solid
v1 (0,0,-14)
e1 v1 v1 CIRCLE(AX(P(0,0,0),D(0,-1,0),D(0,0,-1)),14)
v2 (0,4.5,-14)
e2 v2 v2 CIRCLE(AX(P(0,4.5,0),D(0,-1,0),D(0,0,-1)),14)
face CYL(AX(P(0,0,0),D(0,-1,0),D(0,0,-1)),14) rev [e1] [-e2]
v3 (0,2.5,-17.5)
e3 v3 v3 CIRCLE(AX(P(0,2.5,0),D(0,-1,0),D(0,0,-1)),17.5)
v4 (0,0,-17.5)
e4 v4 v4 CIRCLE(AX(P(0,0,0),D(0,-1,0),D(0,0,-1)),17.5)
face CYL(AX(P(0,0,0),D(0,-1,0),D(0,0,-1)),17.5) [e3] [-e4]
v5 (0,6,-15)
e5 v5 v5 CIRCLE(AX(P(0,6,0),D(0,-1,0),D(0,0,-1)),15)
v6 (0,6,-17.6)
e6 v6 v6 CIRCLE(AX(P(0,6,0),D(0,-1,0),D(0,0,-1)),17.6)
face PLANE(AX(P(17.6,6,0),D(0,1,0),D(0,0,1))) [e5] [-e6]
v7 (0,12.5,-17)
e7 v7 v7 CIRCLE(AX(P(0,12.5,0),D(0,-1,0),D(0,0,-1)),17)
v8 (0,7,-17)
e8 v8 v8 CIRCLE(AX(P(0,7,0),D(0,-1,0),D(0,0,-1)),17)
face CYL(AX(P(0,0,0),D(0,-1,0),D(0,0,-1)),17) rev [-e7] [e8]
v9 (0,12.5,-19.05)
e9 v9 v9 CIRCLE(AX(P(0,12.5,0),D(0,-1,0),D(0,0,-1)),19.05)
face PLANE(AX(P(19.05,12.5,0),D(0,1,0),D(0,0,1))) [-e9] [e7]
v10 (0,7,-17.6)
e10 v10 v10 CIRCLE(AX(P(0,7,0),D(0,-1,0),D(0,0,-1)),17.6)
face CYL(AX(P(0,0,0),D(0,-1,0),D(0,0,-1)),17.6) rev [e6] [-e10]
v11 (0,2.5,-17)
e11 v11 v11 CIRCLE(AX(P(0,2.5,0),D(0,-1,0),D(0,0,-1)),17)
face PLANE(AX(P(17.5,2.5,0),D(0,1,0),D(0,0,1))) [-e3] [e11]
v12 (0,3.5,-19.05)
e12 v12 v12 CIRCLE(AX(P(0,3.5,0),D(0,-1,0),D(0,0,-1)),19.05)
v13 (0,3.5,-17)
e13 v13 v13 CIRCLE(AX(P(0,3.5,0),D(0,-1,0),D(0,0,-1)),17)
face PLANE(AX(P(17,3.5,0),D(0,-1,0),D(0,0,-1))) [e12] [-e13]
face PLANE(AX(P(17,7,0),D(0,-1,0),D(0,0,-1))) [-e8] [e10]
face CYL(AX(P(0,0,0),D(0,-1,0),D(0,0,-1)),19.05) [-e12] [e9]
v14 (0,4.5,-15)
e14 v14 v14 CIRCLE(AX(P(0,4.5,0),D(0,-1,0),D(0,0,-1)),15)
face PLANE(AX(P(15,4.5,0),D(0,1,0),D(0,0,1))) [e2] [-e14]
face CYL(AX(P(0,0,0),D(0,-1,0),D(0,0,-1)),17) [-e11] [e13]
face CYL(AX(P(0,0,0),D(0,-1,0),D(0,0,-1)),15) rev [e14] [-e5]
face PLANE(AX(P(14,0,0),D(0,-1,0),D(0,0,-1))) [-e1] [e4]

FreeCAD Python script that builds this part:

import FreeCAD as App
import Part
import Sketcher
from FreeCAD import Vector

doc = App.newDocument("Part")
params = doc.addObject("Spreadsheet::Sheet", "Params")
for row, (alias, value) in enumerate([
    ("sketch1_width", "1 mm"),
    ("sketch1_height", "9 mm"),
    ("sketch1_width2", "3.5 mm"),
    ("sketch1_width3", "0.5 mm"),
    ("sketch1_width4", "0.6 mm"),
    ("revolution_angle", "360 deg"),
], start=1):
    params.set(f"A{row}", alias)
    params.set(f"B{row}", "=" + value)
    params.setAlias(f"B{row}", alias)

body = doc.addObject("PartDesign::Body", "Body")

# Sketch on XY plane
sketch1 = doc.addObject("Sketcher::SketchObject", "Sketch")
body.addObject(sketch1)
sketch1.AttachmentSupport = (doc.XY_Plane, [""])
sketch1.MapMode = "FlatFace"
sketch1.addGeometry(Part.LineSegment(Vector(14, 0, 0), Vector(17.5, 0, 0)), False)
sketch1.addGeometry(Part.LineSegment(Vector(17.5, 0, 0), Vector(17.5, 2.5, 0)), False)
sketch1.addGeometry(Part.LineSegment(Vector(17.5, 2.5, 0), Vector(17, 2.5, 0)), False)
sketch1.addGeometry(Part.LineSegment(Vector(17, 2.5, 0), Vector(17, 3.5, 0)), False)
sketch1.addGeometry(Part.LineSegment(Vector(17, 3.5, 0), Vector(19.1, 3.5, 0)), False)
sketch1.addGeometry(Part.LineSegment(Vector(19.1, 3.5, 0), Vector(19.1, 12.5, 0)), False)
sketch1.addGeometry(Part.LineSegment(Vector(19.1, 12.5, 0), Vector(17, 12.5, 0)), False)
sketch1.addGeometry(Part.LineSegment(Vector(17, 12.5, 0), Vector(17, 7, 0)), False)
sketch1.addGeometry(Part.LineSegment(Vector(17, 7, 0), Vector(17.6, 7, 0)), False)
sketch1.addGeometry(Part.LineSegment(Vector(17.6, 7, 0), Vector(17.6, 6, 0)), False)
sketch1.addGeometry(Part.LineSegment(Vector(17.6, 6, 0), Vector(15, 6, 0)), False)
sketch1.addGeometry(Part.LineSegment(Vector(15, 6, 0), Vector(15, 4.5, 0)), False)
sketch1.addGeometry(Part.LineSegment(Vector(15, 4.5, 0), Vector(14, 4.5, 0)), False)
sketch1.addGeometry(Part.LineSegment(Vector(14, 4.5, 0), Vector(14, 0, 0)), False)
sketch1.addConstraint(Sketcher.Constraint("Coincident", 0, 2, 1, 1))
sketch1.addConstraint(Sketcher.Constraint("Coincident", 1, 2, 2, 1))
sketch1.addConstraint(Sketcher.Constraint("Coincident", 2, 2, 3, 1))
sketch1.addConstraint(Sketcher.Constraint("Coincident", 3, 2, 4, 1))
sketch1.addConstraint(Sketcher.Constraint("Coincident", 4, 2, 5, 1))
sketch1.addConstraint(Sketcher.Constraint("Coincident", 5, 2, 6, 1))
sketch1.addConstraint(Sketcher.Constraint("Coincident", 6, 2, 7, 1))
sketch1.addConstraint(Sketcher.Constraint("Coincident", 7, 2, 8, 1))
sketch1.addConstraint(Sketcher.Constraint("Coincident", 8, 2, 9, 1))
sketch1.addConstraint(Sketcher.Constraint("Coincident", 9, 2, 10, 1))
sketch1.addConstraint(Sketcher.Constraint("Coincident", 10, 2, 11, 1))
sketch1.addConstraint(Sketcher.Constraint("Coincident", 11, 2, 12, 1))
sketch1.addConstraint(Sketcher.Constraint("Coincident", 12, 2, 13, 1))
sketch1.addConstraint(Sketcher.Constraint("Coincident", 13, 2, 0, 1))
sketch1.addConstraint(Sketcher.Constraint("Horizontal", 0))
sketch1.addConstraint(Sketcher.Constraint("Vertical", 1))
sketch1.addConstraint(Sketcher.Constraint("Horizontal", 2))
sketch1.addConstraint(Sketcher.Constraint("Vertical", 3))
sketch1.addConstraint(Sketcher.Constraint("Horizontal", 4))
sketch1.addConstraint(Sketcher.Constraint("Vertical", 5))
sketch1.addConstraint(Sketcher.Constraint("Horizontal", 6))
sketch1.addConstraint(Sketcher.Constraint("Vertical", 7))
sketch1.addConstraint(Sketcher.Constraint("Horizontal", 8))
sketch1.addConstraint(Sketcher.Constraint("Vertical", 9))
sketch1.addConstraint(Sketcher.Constraint("Horizontal", 10))
sketch1.addConstraint(Sketcher.Constraint("Vertical", 11))
sketch1.addConstraint(Sketcher.Constraint("Horizontal", 12))
sketch1.addConstraint(Sketcher.Constraint("Vertical", 13))
sketch1.addConstraint(Sketcher.Constraint("PointOnObject", 0, 2, -1))
sketch1.addConstraint(Sketcher.Constraint("Vertical", 3, 2, 6, 2))
sketch1.addConstraint(Sketcher.Constraint("Equal", 12, 3))
sketch1.addConstraint(Sketcher.Constraint("Equal", 3, 9))
sketch1.addConstraint(Sketcher.Constraint("DistanceX", 12, 2, 12, 1, 1.0))
sketch1.addConstraint(Sketcher.Constraint("DistanceY", 5, 1, 5, 2, 9.0))
sketch1.addConstraint(Sketcher.Constraint("DistanceX", 0, 1, 0, 2, 3.5))
sketch1.addConstraint(Sketcher.Constraint("DistanceX", 2, 2, 2, 1, 0.5))
sketch1.addConstraint(Sketcher.Constraint("DistanceX", 8, 1, 8, 2, 0.6))
sketch1.addConstraint(Sketcher.Constraint("DistanceY", 1, 1, 1, 2, 2.5))
sketch1.addConstraint(Sketcher.Constraint("DistanceY", 7, 2, 7, 1, 5.5))
sketch1.addConstraint(Sketcher.Constraint("DistanceY", 11, 2, 11, 1, 1.5))
sketch1.addConstraint(Sketcher.Constraint("DistanceX", -1, 1, 2, 2, 17.0))
sketch1.addConstraint(Sketcher.Constraint("DistanceX", 4, 1, 4, 2, 2.05))
sketch1.setExpression("Constraints[32]", "Params.sketch1_width")
sketch1.setExpression("Constraints[33]", "Params.sketch1_height")
sketch1.setExpression("Constraints[34]", "Params.sketch1_width2")
sketch1.setExpression("Constraints[35]", "Params.sketch1_width3")
sketch1.setExpression("Constraints[36]", "Params.sketch1_width4")
revolution = doc.addObject("PartDesign::Revolution", "Revolution")
body.addObject(revolution)
revolution.Profile = sketch1
revolution.ReferenceAxis = (sketch1, ["V_Axis"])
revolution.setExpression("Angle", "Params.revolution_angle")

doc.recompute()
